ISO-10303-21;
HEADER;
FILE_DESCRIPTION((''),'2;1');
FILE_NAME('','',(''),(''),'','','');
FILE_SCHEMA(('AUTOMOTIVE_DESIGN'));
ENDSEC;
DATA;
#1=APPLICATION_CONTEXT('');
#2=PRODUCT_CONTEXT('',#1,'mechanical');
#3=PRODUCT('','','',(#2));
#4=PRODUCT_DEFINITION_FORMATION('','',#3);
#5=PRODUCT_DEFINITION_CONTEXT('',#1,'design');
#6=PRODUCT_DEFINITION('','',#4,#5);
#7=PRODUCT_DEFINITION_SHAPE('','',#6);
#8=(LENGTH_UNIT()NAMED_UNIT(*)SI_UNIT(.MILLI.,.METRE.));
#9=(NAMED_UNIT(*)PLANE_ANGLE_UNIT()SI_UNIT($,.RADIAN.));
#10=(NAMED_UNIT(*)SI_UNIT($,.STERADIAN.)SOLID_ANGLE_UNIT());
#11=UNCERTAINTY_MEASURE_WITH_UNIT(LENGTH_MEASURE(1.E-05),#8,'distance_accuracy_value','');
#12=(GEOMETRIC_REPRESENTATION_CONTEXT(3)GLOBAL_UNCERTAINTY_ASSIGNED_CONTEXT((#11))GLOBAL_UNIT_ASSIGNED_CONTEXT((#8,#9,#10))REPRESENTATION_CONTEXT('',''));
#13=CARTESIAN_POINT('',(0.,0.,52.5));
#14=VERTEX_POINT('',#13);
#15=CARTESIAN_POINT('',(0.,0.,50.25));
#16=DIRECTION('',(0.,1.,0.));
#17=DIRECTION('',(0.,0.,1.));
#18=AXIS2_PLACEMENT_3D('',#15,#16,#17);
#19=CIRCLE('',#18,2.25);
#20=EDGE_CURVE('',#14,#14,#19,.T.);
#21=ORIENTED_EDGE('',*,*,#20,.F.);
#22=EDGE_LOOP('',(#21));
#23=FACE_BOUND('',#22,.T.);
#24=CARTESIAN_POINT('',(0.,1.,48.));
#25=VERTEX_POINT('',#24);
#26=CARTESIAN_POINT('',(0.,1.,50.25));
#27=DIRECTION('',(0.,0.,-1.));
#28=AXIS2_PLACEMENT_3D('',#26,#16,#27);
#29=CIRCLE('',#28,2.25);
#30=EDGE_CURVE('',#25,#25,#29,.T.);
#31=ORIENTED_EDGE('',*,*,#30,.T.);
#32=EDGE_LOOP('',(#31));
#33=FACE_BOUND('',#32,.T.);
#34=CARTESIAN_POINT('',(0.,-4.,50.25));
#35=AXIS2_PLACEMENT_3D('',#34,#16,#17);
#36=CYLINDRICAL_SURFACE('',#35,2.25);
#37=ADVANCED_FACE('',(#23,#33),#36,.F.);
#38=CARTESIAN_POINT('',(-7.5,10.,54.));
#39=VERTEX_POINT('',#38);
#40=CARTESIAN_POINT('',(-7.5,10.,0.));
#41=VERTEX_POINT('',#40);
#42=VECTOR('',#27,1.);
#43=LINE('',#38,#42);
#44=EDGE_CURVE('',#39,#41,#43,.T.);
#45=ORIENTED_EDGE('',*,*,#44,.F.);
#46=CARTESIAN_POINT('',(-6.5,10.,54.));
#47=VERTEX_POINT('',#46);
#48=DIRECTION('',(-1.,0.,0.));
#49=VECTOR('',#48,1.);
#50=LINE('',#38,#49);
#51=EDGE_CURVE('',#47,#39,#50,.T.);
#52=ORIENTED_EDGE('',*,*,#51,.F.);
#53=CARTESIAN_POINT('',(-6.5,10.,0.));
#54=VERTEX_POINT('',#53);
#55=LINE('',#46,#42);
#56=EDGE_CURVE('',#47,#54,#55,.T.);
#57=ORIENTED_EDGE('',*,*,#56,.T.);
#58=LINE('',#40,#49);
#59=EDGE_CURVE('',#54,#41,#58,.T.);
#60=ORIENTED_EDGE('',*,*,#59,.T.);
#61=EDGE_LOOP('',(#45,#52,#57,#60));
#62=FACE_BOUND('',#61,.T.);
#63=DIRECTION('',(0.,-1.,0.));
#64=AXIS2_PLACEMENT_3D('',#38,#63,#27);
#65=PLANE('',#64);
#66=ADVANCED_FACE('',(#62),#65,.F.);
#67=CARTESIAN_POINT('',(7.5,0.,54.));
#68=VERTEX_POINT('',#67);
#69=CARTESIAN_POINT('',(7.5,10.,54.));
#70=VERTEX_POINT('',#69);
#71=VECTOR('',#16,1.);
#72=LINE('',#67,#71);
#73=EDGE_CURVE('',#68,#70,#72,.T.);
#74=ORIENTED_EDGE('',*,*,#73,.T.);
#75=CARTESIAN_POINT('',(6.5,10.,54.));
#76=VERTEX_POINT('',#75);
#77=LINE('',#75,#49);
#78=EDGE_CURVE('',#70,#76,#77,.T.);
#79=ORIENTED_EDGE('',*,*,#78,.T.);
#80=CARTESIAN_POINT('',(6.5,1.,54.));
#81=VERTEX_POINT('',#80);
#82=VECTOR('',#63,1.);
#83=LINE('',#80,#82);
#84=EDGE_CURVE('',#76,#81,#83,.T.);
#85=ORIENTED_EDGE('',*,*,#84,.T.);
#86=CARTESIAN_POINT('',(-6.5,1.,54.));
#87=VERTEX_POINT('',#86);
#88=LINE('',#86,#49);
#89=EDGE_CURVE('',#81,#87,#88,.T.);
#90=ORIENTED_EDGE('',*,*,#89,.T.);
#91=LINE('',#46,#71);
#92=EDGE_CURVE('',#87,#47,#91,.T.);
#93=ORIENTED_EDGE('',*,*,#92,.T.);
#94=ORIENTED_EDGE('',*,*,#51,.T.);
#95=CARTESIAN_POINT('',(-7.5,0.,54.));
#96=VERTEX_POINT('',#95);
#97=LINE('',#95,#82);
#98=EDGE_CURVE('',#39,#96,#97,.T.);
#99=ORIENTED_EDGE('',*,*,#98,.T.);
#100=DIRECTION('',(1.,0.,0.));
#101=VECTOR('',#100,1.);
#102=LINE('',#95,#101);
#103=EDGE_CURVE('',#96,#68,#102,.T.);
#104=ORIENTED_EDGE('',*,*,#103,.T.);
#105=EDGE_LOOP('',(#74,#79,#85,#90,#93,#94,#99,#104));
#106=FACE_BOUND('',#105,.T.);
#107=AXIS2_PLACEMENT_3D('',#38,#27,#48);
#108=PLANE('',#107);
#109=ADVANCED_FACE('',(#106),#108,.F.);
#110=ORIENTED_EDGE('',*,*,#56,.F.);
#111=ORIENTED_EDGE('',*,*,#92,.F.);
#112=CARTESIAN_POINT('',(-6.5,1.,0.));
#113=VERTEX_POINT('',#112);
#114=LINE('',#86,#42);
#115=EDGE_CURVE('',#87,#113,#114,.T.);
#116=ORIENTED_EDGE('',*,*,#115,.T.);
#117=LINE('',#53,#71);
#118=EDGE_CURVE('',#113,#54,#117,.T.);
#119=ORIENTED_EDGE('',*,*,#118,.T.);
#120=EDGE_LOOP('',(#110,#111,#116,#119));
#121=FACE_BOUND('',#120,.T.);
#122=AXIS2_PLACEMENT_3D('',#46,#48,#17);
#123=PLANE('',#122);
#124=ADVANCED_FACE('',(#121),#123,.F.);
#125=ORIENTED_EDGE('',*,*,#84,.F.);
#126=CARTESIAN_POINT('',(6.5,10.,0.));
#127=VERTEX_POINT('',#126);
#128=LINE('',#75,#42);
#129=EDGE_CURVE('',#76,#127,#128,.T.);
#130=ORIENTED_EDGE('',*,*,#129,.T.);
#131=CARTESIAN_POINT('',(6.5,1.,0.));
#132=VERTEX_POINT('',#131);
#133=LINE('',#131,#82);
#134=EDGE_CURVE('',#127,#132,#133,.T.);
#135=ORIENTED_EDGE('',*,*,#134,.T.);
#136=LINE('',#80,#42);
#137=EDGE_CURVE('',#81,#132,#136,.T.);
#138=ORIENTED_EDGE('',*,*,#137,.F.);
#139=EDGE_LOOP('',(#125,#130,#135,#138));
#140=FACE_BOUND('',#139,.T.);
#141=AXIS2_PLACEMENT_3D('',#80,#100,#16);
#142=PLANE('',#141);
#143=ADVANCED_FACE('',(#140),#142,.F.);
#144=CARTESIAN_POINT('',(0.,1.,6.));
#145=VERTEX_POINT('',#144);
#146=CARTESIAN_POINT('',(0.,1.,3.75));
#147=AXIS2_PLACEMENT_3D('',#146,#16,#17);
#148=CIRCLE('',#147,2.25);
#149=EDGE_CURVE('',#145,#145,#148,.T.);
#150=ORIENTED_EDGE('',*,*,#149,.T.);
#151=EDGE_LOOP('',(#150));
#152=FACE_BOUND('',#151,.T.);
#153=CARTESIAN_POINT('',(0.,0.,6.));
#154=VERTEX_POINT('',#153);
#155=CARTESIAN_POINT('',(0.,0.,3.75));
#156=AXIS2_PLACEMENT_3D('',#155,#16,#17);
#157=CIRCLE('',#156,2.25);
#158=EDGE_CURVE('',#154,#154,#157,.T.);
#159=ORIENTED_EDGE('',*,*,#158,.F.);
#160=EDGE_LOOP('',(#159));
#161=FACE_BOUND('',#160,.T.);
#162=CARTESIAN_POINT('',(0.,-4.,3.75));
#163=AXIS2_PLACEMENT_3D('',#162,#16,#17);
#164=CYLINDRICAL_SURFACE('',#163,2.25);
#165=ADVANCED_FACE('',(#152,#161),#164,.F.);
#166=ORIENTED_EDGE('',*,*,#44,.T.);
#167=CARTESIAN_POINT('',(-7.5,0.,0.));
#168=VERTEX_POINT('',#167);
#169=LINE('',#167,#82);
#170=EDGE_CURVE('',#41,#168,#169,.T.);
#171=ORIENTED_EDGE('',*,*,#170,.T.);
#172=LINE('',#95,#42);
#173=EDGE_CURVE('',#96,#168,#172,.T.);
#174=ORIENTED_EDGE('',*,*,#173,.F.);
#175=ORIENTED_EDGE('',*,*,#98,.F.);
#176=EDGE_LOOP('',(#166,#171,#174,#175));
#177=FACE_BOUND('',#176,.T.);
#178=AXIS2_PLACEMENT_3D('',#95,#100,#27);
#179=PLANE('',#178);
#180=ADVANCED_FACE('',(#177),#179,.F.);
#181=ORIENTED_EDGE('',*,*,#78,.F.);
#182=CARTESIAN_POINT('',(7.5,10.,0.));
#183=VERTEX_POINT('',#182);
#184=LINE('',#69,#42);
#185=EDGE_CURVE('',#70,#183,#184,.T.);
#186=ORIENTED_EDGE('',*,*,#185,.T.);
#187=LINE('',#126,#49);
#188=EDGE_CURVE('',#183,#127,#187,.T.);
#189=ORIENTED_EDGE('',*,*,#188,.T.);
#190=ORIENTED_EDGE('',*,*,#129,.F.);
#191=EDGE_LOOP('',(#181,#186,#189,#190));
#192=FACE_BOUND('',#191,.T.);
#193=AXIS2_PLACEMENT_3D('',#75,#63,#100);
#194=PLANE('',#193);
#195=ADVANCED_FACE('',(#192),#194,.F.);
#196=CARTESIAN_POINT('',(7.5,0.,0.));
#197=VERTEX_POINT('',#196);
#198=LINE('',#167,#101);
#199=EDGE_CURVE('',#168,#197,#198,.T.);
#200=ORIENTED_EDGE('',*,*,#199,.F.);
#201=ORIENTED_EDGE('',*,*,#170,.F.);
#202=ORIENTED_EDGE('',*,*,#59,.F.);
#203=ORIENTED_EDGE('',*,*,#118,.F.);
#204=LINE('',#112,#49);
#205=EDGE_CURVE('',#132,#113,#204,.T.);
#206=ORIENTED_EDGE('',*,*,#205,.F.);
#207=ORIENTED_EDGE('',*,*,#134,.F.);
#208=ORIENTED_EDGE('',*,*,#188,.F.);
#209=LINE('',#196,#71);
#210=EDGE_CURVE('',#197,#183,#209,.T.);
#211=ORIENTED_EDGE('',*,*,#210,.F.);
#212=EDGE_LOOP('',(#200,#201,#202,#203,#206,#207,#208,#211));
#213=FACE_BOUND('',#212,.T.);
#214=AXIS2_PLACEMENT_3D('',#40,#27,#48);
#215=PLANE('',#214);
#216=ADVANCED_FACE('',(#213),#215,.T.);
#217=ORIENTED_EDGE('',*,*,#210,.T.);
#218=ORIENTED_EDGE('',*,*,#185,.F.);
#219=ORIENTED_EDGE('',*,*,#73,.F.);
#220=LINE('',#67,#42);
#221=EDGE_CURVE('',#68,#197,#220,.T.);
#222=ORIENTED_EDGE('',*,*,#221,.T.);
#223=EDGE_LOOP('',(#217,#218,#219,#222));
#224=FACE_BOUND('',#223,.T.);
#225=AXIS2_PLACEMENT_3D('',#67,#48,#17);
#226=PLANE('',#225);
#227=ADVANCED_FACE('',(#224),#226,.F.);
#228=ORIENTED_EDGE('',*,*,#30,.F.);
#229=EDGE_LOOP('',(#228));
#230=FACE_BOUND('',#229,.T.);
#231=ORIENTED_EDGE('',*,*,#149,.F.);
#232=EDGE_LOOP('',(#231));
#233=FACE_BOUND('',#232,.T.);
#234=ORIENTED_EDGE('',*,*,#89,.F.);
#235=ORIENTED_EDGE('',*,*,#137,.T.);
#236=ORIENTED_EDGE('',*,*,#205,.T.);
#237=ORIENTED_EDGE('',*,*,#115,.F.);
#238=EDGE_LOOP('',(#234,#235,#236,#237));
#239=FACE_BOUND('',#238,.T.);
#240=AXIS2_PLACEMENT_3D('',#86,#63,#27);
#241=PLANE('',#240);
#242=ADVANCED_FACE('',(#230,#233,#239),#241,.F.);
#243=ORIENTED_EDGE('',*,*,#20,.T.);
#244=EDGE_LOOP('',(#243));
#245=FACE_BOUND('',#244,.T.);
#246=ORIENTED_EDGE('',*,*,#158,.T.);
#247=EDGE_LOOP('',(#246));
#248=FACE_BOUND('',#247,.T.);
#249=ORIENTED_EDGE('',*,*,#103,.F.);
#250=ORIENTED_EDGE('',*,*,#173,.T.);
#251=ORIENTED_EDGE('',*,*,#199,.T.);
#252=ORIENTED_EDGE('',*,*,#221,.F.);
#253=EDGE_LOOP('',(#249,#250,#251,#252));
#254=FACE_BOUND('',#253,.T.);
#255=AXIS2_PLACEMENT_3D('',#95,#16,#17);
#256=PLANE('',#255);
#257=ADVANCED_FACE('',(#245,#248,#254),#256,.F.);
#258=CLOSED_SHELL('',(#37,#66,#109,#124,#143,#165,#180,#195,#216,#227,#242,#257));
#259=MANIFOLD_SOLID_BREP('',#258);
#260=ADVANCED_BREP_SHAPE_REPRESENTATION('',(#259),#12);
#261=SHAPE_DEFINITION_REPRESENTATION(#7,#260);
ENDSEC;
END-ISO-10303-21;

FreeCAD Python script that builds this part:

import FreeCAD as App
import Part
import Sketcher
from FreeCAD import Vector
Q = App.Units.Quantity


def add_polygon(sketch, points):
    """Adds a closed chain of lines whose ends are joined by coincident constraints."""
    first, n = sketch.GeometryCount, len(points)
    for a, b in zip(points, points[1:] + points[:1]):
        sketch.addGeometry(Part.LineSegment(App.Vector(*a, 0), App.Vector(*b, 0)), False)
    for i in range(n):
        sketch.addConstraint(Sketcher.Constraint("Coincident", first + i, 2, first + (i + 1) % n, 1))

doc = App.newDocument("Part")
params = doc.addObject("Spreadsheet::Sheet", "Params")
for row, (alias, value) in enumerate([
    ("sketch1_width", "1 mm"),
    ("sketch1_width2", "15 mm"),
    ("sketch1_height", "9 mm"),
    ("sketch1_height2", "10 mm"),
    ("pad1_length", "54 mm"),
    ("sketch2_diameter", "4.5 mm"),
    ("pocket1_length", "5 mm"),
], start=1):
    params.set(f"A{row}", alias)
    params.set(f"B{row}", "=" + value)
    params.setAlias(f"B{row}", alias)

body = doc.addObject("PartDesign::Body", "Body")

sketch1 = body.newObject("Sketcher::SketchObject", "Sketch")
sketch1.AttachmentSupport = (doc.getObject("XY_Plane"), [""])
sketch1.MapMode = "FlatFace"
add_polygon(sketch1, [(-6.5, 1), (-6.5, 10), (-7.5, 10), (-7.5, 0), (7.5, 0), (7.5, 10), (6.5, 10), (6.5, 1)])
sketch1.addConstraint(Sketcher.Constraint("Vertical", 0))
sketch1.addConstraint(Sketcher.Constraint("Horizontal", 1))
sketch1.addConstraint(Sketcher.Constraint("Vertical", 2))
sketch1.addConstraint(Sketcher.Constraint("Horizontal", 3))
sketch1.addConstraint(Sketcher.Constraint("Vertical", 4))
sketch1.addConstraint(Sketcher.Constraint("Horizontal", 5))
sketch1.addConstraint(Sketcher.Constraint("Vertical", 6))
sketch1.addConstraint(Sketcher.Constraint("Horizontal", 7))
sketch1.addConstraint(Sketcher.Constraint("Symmetric", 2, 2, 3, 2, -1, 1))
sketch1.addConstraint(Sketcher.Constraint("Symmetric", 0, 2, 5, 2, -2))
sketch1.addConstraint(Sketcher.Constraint("DistanceX", 1, 2, 1, 1, Q("1 mm")))
sketch1.addConstraint(Sketcher.Constraint("DistanceX", 3, 1, 3, 2, Q("15 mm")))
sketch1.addConstraint(Sketcher.Constraint("DistanceY", 0, 1, 0, 2, Q("9 mm")))
sketch1.addConstraint(Sketcher.Constraint("DistanceY", 2, 2, 2, 1, Q("10 mm")))
sketch1.setExpression("Constraints[18]", "Params.sketch1_width")
sketch1.setExpression("Constraints[19]", "Params.sketch1_width2")
sketch1.setExpression("Constraints[20]", "Params.sketch1_height")
sketch1.setExpression("Constraints[21]", "Params.sketch1_height2")
pad1 = body.newObject("PartDesign::Pad", "Pad")
pad1.Profile = sketch1
pad1.setExpression("Length", "Params.pad1_length")

sketch2 = body.newObject("Sketcher::SketchObject", "Sketch001")
sketch2.AttachmentSupport = (doc.getObject("XZ_Plane"), [""])
sketch2.MapMode = "FlatFace"
sketch2.AttachmentOffset = App.Placement(Vector(0, 0, -1), App.Rotation())
sketch2.addGeometry(Part.Circle(Vector(0, 3.8, 0), Vector(0, 0, 1), 2.2), False)
sketch2.addGeometry(Part.Circle(Vector(0, 50.2, 0), Vector(0, 0, 1), 2.2), False)
sketch2.addConstraint(Sketcher.Constraint("Equal", 0, 1))
sketch2.addConstraint(Sketcher.Constraint("PointOnObject", 0, 3, -2))
sketch2.addConstraint(Sketcher.Constraint("PointOnObject", 1, 3, -2))
sketch2.addConstraint(Sketcher.Constraint("Diameter", 0, Q("4.5 mm")))
sketch2.addConstraint(Sketcher.Constraint("DistanceY", 0, 3, 1, 3, Q("46.5 mm")))
sketch2.addConstraint(Sketcher.Constraint("DistanceY", -1, 1, 0, 3, Q("3.75 mm")))
sketch2.setExpression("Constraints[3]", "Params.sketch2_diameter")
pocket1 = body.newObject("PartDesign::Pocket", "Pocket")
pocket1.Profile = sketch2
pocket1.setExpression("Length", "Params.pocket1_length")
pocket1.Reversed = True

doc.recompute()
